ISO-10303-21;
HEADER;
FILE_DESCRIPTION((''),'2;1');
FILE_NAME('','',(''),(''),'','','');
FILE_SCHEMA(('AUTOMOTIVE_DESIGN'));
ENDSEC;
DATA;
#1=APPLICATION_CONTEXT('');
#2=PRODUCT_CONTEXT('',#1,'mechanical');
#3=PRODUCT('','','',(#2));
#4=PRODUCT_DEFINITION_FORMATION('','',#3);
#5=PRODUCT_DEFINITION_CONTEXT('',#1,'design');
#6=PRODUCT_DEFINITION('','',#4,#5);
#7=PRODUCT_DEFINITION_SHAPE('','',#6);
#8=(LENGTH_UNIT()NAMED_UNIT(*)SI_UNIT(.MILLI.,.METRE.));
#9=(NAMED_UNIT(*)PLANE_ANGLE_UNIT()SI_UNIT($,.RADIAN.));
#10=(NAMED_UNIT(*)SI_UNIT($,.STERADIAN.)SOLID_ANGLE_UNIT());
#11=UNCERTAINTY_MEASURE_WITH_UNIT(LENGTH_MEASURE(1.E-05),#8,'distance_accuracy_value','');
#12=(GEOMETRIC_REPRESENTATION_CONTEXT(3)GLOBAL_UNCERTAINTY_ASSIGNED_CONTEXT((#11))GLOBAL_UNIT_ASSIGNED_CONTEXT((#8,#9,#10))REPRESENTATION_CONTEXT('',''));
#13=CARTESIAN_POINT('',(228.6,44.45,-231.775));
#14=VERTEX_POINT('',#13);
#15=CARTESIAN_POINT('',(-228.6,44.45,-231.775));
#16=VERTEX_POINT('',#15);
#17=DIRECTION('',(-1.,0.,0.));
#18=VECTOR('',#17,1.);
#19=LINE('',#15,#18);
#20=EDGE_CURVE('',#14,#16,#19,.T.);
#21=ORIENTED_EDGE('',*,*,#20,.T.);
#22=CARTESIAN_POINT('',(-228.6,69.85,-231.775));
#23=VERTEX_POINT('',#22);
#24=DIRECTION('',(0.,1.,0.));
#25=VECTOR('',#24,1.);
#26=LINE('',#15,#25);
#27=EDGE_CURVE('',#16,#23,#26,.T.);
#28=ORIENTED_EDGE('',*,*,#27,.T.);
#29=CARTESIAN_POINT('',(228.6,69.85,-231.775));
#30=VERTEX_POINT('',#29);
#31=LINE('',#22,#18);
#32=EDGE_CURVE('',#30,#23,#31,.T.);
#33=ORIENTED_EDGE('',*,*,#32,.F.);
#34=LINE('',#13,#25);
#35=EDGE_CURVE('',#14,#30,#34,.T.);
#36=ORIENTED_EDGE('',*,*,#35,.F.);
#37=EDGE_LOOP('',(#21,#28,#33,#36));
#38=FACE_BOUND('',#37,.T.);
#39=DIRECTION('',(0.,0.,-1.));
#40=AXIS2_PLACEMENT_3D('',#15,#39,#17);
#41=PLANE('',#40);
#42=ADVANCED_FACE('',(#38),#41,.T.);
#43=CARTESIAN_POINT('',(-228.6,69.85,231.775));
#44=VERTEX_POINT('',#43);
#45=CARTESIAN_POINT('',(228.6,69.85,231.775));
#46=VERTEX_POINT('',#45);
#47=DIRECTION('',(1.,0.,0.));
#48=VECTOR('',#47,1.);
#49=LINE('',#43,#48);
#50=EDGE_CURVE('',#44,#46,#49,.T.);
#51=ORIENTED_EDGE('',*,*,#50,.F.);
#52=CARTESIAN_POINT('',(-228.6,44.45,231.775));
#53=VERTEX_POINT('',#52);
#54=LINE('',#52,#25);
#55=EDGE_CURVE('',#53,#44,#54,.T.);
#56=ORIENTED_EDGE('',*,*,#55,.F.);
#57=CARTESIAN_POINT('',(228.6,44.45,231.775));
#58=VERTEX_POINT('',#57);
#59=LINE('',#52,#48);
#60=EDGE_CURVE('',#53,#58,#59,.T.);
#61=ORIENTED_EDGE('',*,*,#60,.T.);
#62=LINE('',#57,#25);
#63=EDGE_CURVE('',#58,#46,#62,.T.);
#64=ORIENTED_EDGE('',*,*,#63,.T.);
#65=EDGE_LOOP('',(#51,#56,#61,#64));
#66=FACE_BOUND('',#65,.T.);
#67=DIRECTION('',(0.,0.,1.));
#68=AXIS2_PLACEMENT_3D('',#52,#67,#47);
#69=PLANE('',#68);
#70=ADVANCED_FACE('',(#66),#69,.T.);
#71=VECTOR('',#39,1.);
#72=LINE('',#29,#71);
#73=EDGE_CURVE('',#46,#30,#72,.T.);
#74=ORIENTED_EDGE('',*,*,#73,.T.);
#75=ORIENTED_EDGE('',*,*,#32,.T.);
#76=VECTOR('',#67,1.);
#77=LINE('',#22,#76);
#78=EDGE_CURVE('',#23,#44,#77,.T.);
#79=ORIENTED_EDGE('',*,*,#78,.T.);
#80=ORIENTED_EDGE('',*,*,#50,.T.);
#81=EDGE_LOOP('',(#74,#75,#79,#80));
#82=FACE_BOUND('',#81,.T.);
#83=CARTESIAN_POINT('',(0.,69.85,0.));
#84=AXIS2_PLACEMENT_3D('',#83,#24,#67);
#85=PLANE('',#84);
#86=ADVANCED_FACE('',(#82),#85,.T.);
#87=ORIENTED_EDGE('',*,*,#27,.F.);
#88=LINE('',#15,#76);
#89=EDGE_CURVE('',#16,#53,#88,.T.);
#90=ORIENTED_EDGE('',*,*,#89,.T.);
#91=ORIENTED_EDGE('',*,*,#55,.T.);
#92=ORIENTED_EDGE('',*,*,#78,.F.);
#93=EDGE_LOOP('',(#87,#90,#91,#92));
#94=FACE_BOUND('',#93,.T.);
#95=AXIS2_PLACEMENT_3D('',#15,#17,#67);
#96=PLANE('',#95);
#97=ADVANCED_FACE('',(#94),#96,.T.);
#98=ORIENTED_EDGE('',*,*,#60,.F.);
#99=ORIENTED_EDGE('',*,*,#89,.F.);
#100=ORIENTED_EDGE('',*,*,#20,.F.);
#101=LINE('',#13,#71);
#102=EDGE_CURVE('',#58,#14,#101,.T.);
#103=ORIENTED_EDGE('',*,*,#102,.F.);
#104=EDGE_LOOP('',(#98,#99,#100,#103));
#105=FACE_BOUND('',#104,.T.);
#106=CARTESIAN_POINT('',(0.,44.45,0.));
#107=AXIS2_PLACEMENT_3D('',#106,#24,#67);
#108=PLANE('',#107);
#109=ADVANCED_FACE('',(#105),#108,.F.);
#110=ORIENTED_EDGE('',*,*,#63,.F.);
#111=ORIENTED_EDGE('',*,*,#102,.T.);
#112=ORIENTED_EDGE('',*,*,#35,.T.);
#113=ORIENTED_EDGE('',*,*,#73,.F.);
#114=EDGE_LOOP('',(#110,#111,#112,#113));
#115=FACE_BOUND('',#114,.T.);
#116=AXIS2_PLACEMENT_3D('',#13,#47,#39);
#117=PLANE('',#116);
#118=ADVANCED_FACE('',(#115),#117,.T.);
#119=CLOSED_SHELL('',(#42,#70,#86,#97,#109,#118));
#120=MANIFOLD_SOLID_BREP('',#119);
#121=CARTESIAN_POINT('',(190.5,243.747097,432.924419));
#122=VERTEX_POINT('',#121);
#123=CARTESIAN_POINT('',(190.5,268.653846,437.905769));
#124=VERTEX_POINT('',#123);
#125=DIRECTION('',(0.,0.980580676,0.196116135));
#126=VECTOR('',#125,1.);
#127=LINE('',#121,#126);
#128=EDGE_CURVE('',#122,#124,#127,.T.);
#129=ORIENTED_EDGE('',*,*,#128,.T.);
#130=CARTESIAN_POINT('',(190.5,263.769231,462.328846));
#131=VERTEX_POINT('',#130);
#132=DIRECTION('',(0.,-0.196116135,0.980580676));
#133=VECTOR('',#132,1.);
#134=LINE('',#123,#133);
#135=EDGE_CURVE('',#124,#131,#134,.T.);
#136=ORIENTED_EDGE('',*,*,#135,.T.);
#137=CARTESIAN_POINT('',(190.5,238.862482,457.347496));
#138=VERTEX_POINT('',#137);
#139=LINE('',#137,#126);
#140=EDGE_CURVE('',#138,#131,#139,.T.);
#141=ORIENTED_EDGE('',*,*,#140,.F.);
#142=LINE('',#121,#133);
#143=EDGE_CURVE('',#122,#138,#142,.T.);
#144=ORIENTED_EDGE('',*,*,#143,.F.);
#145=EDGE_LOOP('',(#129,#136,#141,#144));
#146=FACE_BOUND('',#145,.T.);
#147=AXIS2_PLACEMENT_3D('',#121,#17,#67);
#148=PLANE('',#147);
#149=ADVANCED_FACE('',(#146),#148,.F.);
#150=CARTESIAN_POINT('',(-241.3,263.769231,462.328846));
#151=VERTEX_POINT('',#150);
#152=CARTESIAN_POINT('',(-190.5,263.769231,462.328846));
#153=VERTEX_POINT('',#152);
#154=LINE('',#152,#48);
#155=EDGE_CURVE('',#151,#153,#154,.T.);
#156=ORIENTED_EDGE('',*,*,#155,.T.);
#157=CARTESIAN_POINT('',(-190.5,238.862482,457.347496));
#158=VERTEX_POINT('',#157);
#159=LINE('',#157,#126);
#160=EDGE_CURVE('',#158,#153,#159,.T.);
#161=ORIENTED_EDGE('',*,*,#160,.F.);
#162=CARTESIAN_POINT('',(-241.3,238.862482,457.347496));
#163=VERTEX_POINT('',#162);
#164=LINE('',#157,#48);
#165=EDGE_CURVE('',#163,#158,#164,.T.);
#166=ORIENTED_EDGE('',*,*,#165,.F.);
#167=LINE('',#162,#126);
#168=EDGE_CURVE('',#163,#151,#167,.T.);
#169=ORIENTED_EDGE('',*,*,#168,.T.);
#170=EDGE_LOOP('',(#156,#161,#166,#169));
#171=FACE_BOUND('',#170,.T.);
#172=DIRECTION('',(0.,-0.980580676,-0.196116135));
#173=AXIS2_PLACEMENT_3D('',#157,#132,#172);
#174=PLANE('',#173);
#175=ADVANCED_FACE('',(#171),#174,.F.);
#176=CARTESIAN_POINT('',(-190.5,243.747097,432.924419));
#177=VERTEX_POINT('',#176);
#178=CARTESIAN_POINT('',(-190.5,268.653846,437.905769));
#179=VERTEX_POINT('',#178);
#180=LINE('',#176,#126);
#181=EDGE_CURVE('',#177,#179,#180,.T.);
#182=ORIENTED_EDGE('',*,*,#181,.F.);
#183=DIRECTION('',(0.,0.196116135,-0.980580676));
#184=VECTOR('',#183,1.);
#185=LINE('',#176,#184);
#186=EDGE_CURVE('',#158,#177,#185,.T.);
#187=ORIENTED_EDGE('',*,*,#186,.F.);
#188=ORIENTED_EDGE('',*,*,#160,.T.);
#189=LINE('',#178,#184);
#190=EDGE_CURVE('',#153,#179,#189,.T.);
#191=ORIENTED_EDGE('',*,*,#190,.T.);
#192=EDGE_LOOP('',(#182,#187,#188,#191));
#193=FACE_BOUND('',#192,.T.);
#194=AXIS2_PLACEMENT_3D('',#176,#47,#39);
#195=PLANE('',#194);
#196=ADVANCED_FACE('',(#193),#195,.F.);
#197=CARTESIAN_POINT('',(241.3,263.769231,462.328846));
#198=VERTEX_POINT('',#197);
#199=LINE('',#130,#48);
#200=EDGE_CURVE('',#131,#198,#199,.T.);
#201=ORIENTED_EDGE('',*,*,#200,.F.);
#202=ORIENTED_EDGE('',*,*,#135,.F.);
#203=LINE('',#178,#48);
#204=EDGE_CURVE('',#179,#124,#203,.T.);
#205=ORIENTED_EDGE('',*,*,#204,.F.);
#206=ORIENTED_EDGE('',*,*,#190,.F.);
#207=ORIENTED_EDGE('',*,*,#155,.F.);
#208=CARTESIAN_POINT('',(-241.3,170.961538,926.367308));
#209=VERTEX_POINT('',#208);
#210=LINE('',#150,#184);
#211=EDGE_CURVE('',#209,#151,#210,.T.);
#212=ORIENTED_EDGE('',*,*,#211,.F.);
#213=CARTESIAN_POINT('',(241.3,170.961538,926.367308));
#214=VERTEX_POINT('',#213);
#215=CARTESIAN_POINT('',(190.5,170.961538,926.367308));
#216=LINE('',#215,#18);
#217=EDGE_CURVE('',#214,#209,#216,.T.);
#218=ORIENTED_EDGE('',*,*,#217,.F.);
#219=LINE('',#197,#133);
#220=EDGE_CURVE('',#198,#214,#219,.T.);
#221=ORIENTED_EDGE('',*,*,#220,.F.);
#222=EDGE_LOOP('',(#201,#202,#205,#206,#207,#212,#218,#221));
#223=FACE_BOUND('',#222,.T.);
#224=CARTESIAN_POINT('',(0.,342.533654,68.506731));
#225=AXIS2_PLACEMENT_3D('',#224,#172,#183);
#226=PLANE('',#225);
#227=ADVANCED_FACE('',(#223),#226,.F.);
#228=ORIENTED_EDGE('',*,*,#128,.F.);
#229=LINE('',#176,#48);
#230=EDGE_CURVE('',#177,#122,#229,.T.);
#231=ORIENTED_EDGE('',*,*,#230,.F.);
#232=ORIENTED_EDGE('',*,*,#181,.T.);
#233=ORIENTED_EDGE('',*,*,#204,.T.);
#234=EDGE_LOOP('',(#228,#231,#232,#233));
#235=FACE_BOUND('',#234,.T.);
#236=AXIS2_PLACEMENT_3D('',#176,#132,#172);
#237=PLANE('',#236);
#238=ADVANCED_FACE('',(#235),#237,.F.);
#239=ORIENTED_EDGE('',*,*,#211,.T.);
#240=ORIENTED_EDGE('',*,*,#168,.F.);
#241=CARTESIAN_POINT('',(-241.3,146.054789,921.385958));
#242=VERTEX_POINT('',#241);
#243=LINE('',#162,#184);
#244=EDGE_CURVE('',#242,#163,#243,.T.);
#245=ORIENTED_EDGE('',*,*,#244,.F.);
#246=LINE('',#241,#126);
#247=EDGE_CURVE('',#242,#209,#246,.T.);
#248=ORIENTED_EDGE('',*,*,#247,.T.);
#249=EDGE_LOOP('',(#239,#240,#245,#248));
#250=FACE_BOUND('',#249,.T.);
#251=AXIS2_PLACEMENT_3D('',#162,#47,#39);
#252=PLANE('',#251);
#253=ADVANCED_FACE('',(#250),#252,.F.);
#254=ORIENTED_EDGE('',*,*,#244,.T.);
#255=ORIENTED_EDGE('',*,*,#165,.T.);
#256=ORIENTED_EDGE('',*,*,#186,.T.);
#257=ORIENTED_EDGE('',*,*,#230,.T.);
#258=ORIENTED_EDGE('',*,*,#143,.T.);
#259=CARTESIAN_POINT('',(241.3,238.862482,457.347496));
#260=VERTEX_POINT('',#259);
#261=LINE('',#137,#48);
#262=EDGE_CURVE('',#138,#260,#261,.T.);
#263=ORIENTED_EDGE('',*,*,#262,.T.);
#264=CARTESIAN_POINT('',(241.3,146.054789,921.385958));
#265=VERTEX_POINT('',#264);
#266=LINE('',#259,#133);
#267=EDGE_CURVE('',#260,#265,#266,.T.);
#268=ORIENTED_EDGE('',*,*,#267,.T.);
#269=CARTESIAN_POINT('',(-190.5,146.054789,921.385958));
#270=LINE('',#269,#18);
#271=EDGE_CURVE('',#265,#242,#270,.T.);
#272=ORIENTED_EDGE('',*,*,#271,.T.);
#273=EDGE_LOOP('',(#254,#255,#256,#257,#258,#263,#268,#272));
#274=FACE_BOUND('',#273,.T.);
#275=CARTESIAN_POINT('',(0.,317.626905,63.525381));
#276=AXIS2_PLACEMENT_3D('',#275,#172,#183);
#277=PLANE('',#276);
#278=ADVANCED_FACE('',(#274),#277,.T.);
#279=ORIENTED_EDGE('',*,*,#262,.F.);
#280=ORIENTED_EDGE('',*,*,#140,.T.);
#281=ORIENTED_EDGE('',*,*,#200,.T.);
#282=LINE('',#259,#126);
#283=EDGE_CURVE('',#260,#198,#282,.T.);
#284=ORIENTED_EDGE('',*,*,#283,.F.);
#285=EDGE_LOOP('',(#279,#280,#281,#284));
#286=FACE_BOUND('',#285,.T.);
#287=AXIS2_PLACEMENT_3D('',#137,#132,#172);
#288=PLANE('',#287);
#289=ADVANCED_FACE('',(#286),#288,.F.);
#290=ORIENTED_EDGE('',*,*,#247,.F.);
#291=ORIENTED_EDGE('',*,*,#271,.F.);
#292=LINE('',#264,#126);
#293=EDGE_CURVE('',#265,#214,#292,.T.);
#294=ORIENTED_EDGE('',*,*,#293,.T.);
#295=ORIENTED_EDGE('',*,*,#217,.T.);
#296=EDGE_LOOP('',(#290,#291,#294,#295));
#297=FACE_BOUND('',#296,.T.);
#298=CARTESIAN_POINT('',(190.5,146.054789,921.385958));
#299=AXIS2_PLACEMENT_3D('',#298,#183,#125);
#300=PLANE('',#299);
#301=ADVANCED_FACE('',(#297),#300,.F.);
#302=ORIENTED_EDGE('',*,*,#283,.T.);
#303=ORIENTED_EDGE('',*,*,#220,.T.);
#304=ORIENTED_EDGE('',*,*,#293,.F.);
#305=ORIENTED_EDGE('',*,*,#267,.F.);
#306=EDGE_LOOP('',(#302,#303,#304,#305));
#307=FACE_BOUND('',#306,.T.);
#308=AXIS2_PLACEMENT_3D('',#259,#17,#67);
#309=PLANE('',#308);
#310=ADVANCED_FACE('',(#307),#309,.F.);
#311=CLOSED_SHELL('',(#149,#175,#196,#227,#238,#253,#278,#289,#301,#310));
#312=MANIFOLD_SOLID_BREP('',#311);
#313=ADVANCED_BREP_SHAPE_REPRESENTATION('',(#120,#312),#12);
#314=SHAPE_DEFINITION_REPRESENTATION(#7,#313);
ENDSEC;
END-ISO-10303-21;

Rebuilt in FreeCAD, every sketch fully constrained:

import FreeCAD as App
import Part
import Sketcher
from FreeCAD import Vector
Q = App.Units.Quantity

doc = App.newDocument("Part")
params = doc.addObject("Spreadsheet::Sheet", "Params")
for row, (alias, value) in enumerate([
    ("sketch1_width", "18 in"),
    ("sketch1_height", "18.25 in"),
    ("pad1_length", "1 in"),
    ("sketch2_height", "19 in"),
    ("sketch2_height2", "2 in"),
    ("pad2_length", "1 in"),
], start=1):
    params.set(f"A{row}", alias)
    params.set(f"B{row}", "=" + value)
    params.setAlias(f"B{row}", alias)

body = doc.addObject("PartDesign::Body", "Body")

sketch1 = body.newObject("Sketcher::SketchObject", "Sketch")
sketch1.AttachmentSupport = (doc.getObject("XZ_Plane"), [""])
sketch1.MapMode = "FlatFace"
sketch1.AttachmentOffset = App.Placement(Vector(0, 0, -2.75 * 25.4), App.Rotation())
sketch1.addGeometry(Part.LineSegment(Vector(-229, -232, 0), Vector(-229, 232, 0)), False)
sketch1.addGeometry(Part.LineSegment(Vector(-229, 232, 0), Vector(229, 232, 0)), False)
sketch1.addGeometry(Part.LineSegment(Vector(229, 232, 0), Vector(229, -232, 0)), False)
sketch1.addGeometry(Part.LineSegment(Vector(229, -232, 0), Vector(-229, -232, 0)), False)
sketch1.addConstraint(Sketcher.Constraint("Coincident", 0, 2, 1, 1))
sketch1.addConstraint(Sketcher.Constraint("Coincident", 1, 2, 2, 1))
sketch1.addConstraint(Sketcher.Constraint("Coincident", 2, 2, 3, 1))
sketch1.addConstraint(Sketcher.Constraint("Coincident", 3, 2, 0, 1))
sketch1.addConstraint(Sketcher.Constraint("Vertical", 0))
sketch1.addConstraint(Sketcher.Constraint("Horizontal", 1))
sketch1.addConstraint(Sketcher.Constraint("Vertical", 2))
sketch1.addConstraint(Sketcher.Constraint("Horizontal", 3))
sketch1.addConstraint(Sketcher.Constraint("Symmetric", 0, 2, 2, 2, -1, 1))
sketch1.addConstraint(Sketcher.Constraint("DistanceX", 1, 1, 1, 2, Q("18 in")))
sketch1.addConstraint(Sketcher.Constraint("DistanceY", 0, 1, 0, 2, Q("18.25 in")))
sketch1.setExpression("Constraints[9]", "Params.sketch1_width")
sketch1.setExpression("Constraints[10]", "Params.sketch1_height")
pad1 = body.newObject("PartDesign::Pad", "Pad")
pad1.Profile = sketch1
pad1.setExpression("Length", "Params.pad1_length")
body2 = doc.addObject("PartDesign::Body", "Body001")

sketch2 = body2.newObject("Sketcher::SketchObject", "Sketch001")
sketch2.Placement = App.Placement(Vector(0, 342.533654, 68.506731), App.Rotation(Vector(0, 0.196116135, -0.980580676), Vector(1.000000001, 0, 0), Vector(0, -0.980580676, -0.196116135), "ZXY"))
sketch2.addGeometry(Part.LineSegment(Vector(-875, 241, 0), Vector(-875, -241, 0)), False)
sketch2.addGeometry(Part.LineSegment(Vector(-875, -241, 0), Vector(-402, -241, 0)), False)
sketch2.addGeometry(Part.LineSegment(Vector(-402, -241, 0), Vector(-402, -191, 0)), False)
sketch2.addGeometry(Part.LineSegment(Vector(-402, -191, 0), Vector(-377, -191, 0)), False)
sketch2.addGeometry(Part.LineSegment(Vector(-377, -191, 0), Vector(-377, 191, 0)), False)
sketch2.addGeometry(Part.LineSegment(Vector(-377, 191, 0), Vector(-402, 191, 0)), False)
sketch2.addGeometry(Part.LineSegment(Vector(-402, 191, 0), Vector(-402, 241, 0)), False)
sketch2.addGeometry(Part.LineSegment(Vector(-402, 241, 0), Vector(-875, 241, 0)), False)
sketch2.addConstraint(Sketcher.Constraint("Coincident", 0, 2, 1, 1))
sketch2.addConstraint(Sketcher.Constraint("Coincident", 1, 2, 2, 1))
sketch2.addConstraint(Sketcher.Constraint("Coincident", 2, 2, 3, 1))
sketch2.addConstraint(Sketcher.Constraint("Coincident", 3, 2, 4, 1))
sketch2.addConstraint(Sketcher.Constraint("Coincident", 4, 2, 5, 1))
sketch2.addConstraint(Sketcher.Constraint("Coincident", 5, 2, 6, 1))
sketch2.addConstraint(Sketcher.Constraint("Coincident", 6, 2, 7, 1))
sketch2.addConstraint(Sketcher.Constraint("Coincident", 7, 2, 0, 1))
sketch2.addConstraint(Sketcher.Constraint("Vertical", 0))
sketch2.addConstraint(Sketcher.Constraint("Horizontal", 1))
sketch2.addConstraint(Sketcher.Constraint("Vertical", 2))
sketch2.addConstraint(Sketcher.Constraint("Horizontal", 3))
sketch2.addConstraint(Sketcher.Constraint("Vertical", 4))
sketch2.addConstraint(Sketcher.Constraint("Horizontal", 5))
sketch2.addConstraint(Sketcher.Constraint("Vertical", 6))
sketch2.addConstraint(Sketcher.Constraint("Horizontal", 7))
sketch2.addConstraint(Sketcher.Constraint("Symmetric", 2, 2, 5, 2, -1))
sketch2.addConstraint(Sketcher.Constraint("Equal", 2, 6))
sketch2.addConstraint(Sketcher.Constraint("DistanceY", 0, 2, 0, 1, Q("19 in")))
sketch2.addConstraint(Sketcher.Constraint("DistanceY", 2, 1, 2, 2, Q("2 in")))
sketch2.addConstraint(Sketcher.Constraint("DistanceX", 3, 1, 3, 2, 24.906749))
sketch2.addConstraint(Sketcher.Constraint("DistanceX", 1, 1, 1, 2, 473.228234))
sketch2.addConstraint(Sketcher.Constraint("DistanceX", 1, 2, -1, 1, 401.62133))
sketch2.setExpression("Constraints[18]", "Params.sketch2_height")
sketch2.setExpression("Constraints[19]", "Params.sketch2_height2")
pad2 = body2.newObject("PartDesign::Pad", "Pad001")
pad2.Profile = sketch2
pad2.setExpression("Length", "Params.pad2_length")

doc.recompute()
